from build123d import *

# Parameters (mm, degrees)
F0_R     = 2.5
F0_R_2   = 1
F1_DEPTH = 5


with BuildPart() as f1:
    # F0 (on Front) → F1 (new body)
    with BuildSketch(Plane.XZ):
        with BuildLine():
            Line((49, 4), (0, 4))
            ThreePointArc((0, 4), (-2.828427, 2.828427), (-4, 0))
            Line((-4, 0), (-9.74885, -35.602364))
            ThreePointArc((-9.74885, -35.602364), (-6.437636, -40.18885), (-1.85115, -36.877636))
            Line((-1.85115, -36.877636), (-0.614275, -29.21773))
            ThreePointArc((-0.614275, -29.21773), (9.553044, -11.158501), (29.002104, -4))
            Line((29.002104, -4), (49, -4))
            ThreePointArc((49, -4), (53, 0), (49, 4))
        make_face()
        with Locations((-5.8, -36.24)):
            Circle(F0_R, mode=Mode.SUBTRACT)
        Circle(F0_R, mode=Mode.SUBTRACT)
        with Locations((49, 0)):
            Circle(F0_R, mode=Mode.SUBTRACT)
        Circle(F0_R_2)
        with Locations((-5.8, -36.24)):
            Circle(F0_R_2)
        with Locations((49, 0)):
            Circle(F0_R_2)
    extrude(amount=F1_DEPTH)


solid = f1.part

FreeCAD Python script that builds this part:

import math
import FreeCAD as App
import Part
import Sketcher
from FreeCAD import Vector

doc = App.newDocument("Part")
params = doc.addObject("Spreadsheet::Sheet", "Params")
for row, (alias, value) in enumerate([
    ("sketch1_diameter", "5 mm"),
    ("sketch1_diameter2", "2 mm"),
    ("sketch1_radius", "4 mm"),
    ("sketch1_radius2", "30 mm"),
    ("sketch1_width", "49 mm"),
    ("pad1_length", "5 mm"),
], start=1):
    params.set(f"A{row}", alias)
    params.set(f"B{row}", "=" + value)
    params.setAlias(f"B{row}", alias)

body = doc.addObject("PartDesign::Body", "Body")
body.AllowCompound = True

# Sketch on XZ plane
sketch1 = body.newObject("Sketcher::SketchObject", "Sketch")
sketch1.AttachmentSupport = (doc.getObject("XZ_Plane"), [""])
sketch1.MapMode = "FlatFace"
sketch1.addGeometry([
    Part.LineSegment(Vector(49, 4, 0), Vector(0, 4, 0)),  # 0
    Part.ArcOfCircle(Part.Circle(Vector(0, 0, 0), Vector(0, 0, 1), 4), math.radians(90.000006), math.radians(179.999994)),  # 1
    Part.LineSegment(Vector(-4, 0, 0), Vector(-9.74885, -35.602364, 0)),  # 2
    Part.ArcOfCircle(Part.Circle(Vector(-5.8, -36.24, 0), Vector(0, 0, 1), 3.999999), math.radians(170.827405), math.radians(350.827405)),  # 3
    Part.LineSegment(Vector(-1.85115, -36.877636, 0), Vector(-0.614275, -29.21773, 0)),  # 4
    Part.ArcOfCircle(Part.Circle(Vector(29.002104, -34, 0), Vector(0, 0, 1), 30), math.radians(89.999999), math.radians(170.827406)),  # 5
    Part.LineSegment(Vector(29.002104, -4, 0), Vector(49, -4, 0)),  # 6
    Part.ArcOfCircle(Part.Circle(Vector(49, 0, 0), Vector(0, 0, 1), 4), math.radians(-90), math.radians(90)),  # 7
    Part.Circle(Vector(-5.8, -36.24, 0), Vector(0, 0, 1), 2.5),  # 8
    Part.Circle(Vector(0, 0, 0), Vector(0, 0, 1), 2.5),  # 9
    Part.Circle(Vector(49, 0, 0), Vector(0, 0, 1), 2.5),  # 10
    Part.Circle(Vector(0, 0, 0), Vector(0, 0, 1), 1),  # 11
    Part.Circle(Vector(-5.8, -36.24, 0), Vector(0, 0, 1), 1),  # 12
    Part.Circle(Vector(49, 0, 0), Vector(0, 0, 1), 1),  # 13
], False)
sketch1.addConstraint([
    Sketcher.Constraint("Tangent", 0, 2, 1, 1),
    Sketcher.Constraint("Coincident", 1, 2, 2, 1),
    Sketcher.Constraint("Tangent", 2, 2, 3, 1),
    Sketcher.Constraint("Tangent", 3, 2, 4, 1),
    Sketcher.Constraint("Tangent", 4, 2, 5, 2),
    Sketcher.Constraint("Tangent", 5, 1, 6, 1),
    Sketcher.Constraint("Tangent", 6, 2, 7, 1),
    Sketcher.Constraint("Tangent", 7, 2, 0, 1),
    Sketcher.Constraint("Horizontal", 0),
    Sketcher.Constraint("Horizontal", 6),
    Sketcher.Constraint("Coincident", 1, 3, -1, 1),
    Sketcher.Constraint("Coincident", 9, 3, -1, 1),
    Sketcher.Constraint("Coincident", 11, 3, -1, 1),
    Sketcher.Constraint("Coincident", 8, 3, 3, 3),
    Sketcher.Constraint("Coincident", 10, 3, 7, 3),
    Sketcher.Constraint("Coincident", 12, 3, 3, 3),
    Sketcher.Constraint("Coincident", 13, 3, 7, 3),
    Sketcher.Constraint("Equal", 1, 3),
    Sketcher.Constraint("Equal", 3, 7),
    Sketcher.Constraint("Equal", 8, 9),
    Sketcher.Constraint("Equal", 9, 10),
    Sketcher.Constraint("Equal", 11, 12),
    Sketcher.Constraint("Equal", 12, 13),
    Sketcher.Constraint("PointOnObject", 1, 2, -1),
    Sketcher.Constraint("Parallel", 2, 4),
    Sketcher.Constraint("Diameter", 8, 5.0),
    Sketcher.Constraint("Diameter", 11, 2.0),
    Sketcher.Constraint("Radius", 1, 4.0),
    Sketcher.Constraint("Radius", 5, 30.0),
    Sketcher.Constraint("DistanceX", 0, 2, 0, 1, 49.0),
    Sketcher.Constraint("DistanceX", 3, 3, -1, 1, 5.8),
    Sketcher.Constraint("DistanceY", 3, 3, -1, 1, 36.24),
])
sketch1.setExpression("Constraints[25]", "Params.sketch1_diameter")
sketch1.setExpression("Constraints[26]", "Params.sketch1_diameter2")
sketch1.setExpression("Constraints[27]", "Params.sketch1_radius")
sketch1.setExpression("Constraints[28]", "Params.sketch1_radius2")
sketch1.setExpression("Constraints[29]", "Params.sketch1_width")
pad1 = body.newObject("PartDesign::Pad", "Pad")
pad1.Profile = sketch1
pad1.setExpression("Length", "Params.pad1_length")

doc.recompute()
